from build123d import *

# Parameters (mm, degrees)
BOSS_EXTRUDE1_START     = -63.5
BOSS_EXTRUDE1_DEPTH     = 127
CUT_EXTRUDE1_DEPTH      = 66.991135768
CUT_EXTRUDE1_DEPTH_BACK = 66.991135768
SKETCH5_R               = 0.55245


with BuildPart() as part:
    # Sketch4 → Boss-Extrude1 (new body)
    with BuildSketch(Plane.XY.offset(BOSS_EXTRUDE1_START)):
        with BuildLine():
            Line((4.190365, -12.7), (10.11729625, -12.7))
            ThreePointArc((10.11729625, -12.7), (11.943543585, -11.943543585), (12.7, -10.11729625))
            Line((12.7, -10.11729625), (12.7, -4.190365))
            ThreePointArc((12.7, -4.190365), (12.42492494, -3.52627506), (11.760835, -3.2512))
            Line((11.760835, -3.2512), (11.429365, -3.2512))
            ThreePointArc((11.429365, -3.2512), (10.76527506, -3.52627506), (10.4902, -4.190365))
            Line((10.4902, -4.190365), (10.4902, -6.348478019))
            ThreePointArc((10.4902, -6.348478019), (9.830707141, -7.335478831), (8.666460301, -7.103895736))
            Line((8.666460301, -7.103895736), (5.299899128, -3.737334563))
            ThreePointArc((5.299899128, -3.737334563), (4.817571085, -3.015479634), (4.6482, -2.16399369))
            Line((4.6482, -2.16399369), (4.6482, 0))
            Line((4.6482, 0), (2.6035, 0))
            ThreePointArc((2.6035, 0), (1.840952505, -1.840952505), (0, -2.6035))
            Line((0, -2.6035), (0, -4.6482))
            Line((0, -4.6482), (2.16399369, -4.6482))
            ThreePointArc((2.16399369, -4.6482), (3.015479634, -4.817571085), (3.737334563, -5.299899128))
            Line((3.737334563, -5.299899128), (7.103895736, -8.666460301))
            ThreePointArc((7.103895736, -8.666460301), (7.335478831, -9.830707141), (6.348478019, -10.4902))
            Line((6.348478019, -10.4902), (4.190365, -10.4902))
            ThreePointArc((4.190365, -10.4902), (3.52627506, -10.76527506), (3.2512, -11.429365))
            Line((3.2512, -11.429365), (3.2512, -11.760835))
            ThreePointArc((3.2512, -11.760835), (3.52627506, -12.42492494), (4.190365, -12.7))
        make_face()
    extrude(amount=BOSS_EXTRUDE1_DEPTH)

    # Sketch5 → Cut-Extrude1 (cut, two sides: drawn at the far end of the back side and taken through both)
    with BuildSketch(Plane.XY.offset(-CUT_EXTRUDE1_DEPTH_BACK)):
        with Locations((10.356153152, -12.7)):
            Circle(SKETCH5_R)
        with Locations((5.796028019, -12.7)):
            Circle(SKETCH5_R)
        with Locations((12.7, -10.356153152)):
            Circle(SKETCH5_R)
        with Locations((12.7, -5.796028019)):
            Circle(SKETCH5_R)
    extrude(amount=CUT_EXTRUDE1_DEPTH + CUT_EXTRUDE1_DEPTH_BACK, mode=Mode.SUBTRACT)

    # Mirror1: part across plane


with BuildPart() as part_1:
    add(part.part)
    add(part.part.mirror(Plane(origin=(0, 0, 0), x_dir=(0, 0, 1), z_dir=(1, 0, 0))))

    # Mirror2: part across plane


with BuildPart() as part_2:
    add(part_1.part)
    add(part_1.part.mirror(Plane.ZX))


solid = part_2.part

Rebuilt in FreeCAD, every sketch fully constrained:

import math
import FreeCAD as App
import Part
import Sketcher
Q = App.Units.Quantity

doc = App.newDocument("Part")
params = doc.addObject("Spreadsheet::Sheet", "Params")
for row, (alias, value) in enumerate([
    ("pad1_length", "5 in"),
], start=1):
    params.set(f"A{row}", alias)
    params.set(f"B{row}", "=" + value)
    params.setAlias(f"B{row}", alias)

body = doc.addObject("PartDesign::Body", "Body")

sketch1 = body.newObject("Sketcher::SketchObject", "Sketch")
sketch1.AttachmentSupport = (doc.getObject("XY_Plane"), [""])
sketch1.MapMode = "FlatFace"
sketch1.AttachmentOffset = App.Placement(App.Vector(0, 0, -2.5 * 25.4), App.Rotation())
sketch1.addGeometry([
    Part.LineSegment(App.Vector(4.19, -12.7, 0), App.Vector(10.12, -12.7, 0)),
    Part.ArcOfCircle(Part.Circle(App.Vector(10.12, -10.12, 0), App.Vector(0, 0, 1), 2.58), math.radians(-90), math.radians(0)),
    Part.LineSegment(App.Vector(12.7, -10.12, 0), App.Vector(12.7, -4.19, 0)),
    Part.ArcOfCircle(Part.Circle(App.Vector(11.76, -4.19, 0), App.Vector(0, 0, 1), 0.94), math.radians(0), math.radians(90)),
    Part.LineSegment(App.Vector(11.76, -3.25, 0), App.Vector(11.43, -3.25, 0)),
    Part.ArcOfCircle(Part.Circle(App.Vector(11.43, -4.19, 0), App.Vector(0, 0, 1), 0.94), math.radians(90), math.radians(180)),
    Part.LineSegment(App.Vector(10.49, -4.19, 0), App.Vector(10.49, -6.35, 0)),
    Part.ArcOfCircle(Part.Circle(App.Vector(9.42, -6.35, 0), App.Vector(0, 0, 1), 1.07), math.radians(-135), math.radians(0)),
    Part.LineSegment(App.Vector(8.67, -7.1, 0), App.Vector(5.3, -3.74, 0)),
    Part.ArcOfCircle(Part.Circle(App.Vector(6.87, -2.16, 0), App.Vector(0, 0, 1), 2.23), math.radians(-180), math.radians(-135)),
    Part.LineSegment(App.Vector(4.65, -2.16, 0), App.Vector(4.65, 0, 0)),
    Part.LineSegment(App.Vector(4.65, 0, 0), App.Vector(2.6, 0, 0)),
    Part.ArcOfCircle(Part.Circle(App.Vector(0, 0, 0), App.Vector(0, 0, 1), 2.6), math.radians(-90), math.radians(0)),
    Part.LineSegment(App.Vector(0, -2.6, 0), App.Vector(0, -4.65, 0)),
    Part.LineSegment(App.Vector(0, -4.65, 0), App.Vector(2.16, -4.65, 0)),
    Part.ArcOfCircle(Part.Circle(App.Vector(2.16, -6.87, 0), App.Vector(0, 0, 1), 2.23), math.radians(45), math.radians(90)),
    Part.LineSegment(App.Vector(3.74, -5.3, 0), App.Vector(7.1, -8.67, 0)),
    Part.ArcOfCircle(Part.Circle(App.Vector(6.35, -9.42, 0), App.Vector(0, 0, 1), 1.07), math.radians(-90), math.radians(45)),
    Part.LineSegment(App.Vector(6.35, -10.49, 0), App.Vector(4.19, -10.49, 0)),
    Part.ArcOfCircle(Part.Circle(App.Vector(4.19, -11.43, 0), App.Vector(0, 0, 1), 0.94), math.radians(90), math.radians(180)),
    Part.LineSegment(App.Vector(3.25, -11.43, 0), App.Vector(3.25, -11.76, 0)),
    Part.ArcOfCircle(Part.Circle(App.Vector(4.19, -11.76, 0), App.Vector(0, 0, 1), 0.94), math.radians(-180), math.radians(-90)),
], False)
sketch1.addConstraint([
    Sketcher.Constraint("Tangent", 0, 2, 1, 1),
    Sketcher.Constraint("Tangent", 1, 2, 2, 1),
    Sketcher.Constraint("Tangent", 2, 2, 3, 1),
    Sketcher.Constraint("Tangent", 3, 2, 4, 1),
    Sketcher.Constraint("Tangent", 4, 2, 5, 1),
    Sketcher.Constraint("Tangent", 5, 2, 6, 1),
    Sketcher.Constraint("Tangent", 6, 2, 7, 2),
    Sketcher.Constraint("Tangent", 7, 1, 8, 1),
    Sketcher.Constraint("Tangent", 8, 2, 9, 2),
    Sketcher.Constraint("Tangent", 9, 1, 10, 1),
    Sketcher.Constraint("Coincident", 10, 2, 11, 1),
    Sketcher.Constraint("Coincident", 11, 2, 12, 2),
    Sketcher.Constraint("Coincident", 12, 1, 13, 1),
    Sketcher.Constraint("Coincident", 13, 2, 14, 1),
    Sketcher.Constraint("Tangent", 14, 2, 15, 2),
    Sketcher.Constraint("Tangent", 15, 1, 16, 1),
    Sketcher.Constraint("Tangent", 16, 2, 17, 2),
    Sketcher.Constraint("Tangent", 17, 1, 18, 1),
    Sketcher.Constraint("Tangent", 18, 2, 19, 1),
    Sketcher.Constraint("Tangent", 19, 2, 20, 1),
    Sketcher.Constraint("Tangent", 20, 2, 21, 1),
    Sketcher.Constraint("Tangent", 21, 2, 0, 1),
    Sketcher.Constraint("Horizontal", 0),
    Sketcher.Constraint("Vertical", 2),
    Sketcher.Constraint("Horizontal", 4),
    Sketcher.Constraint("Vertical", 6),
    Sketcher.Constraint("Vertical", 10),
    Sketcher.Constraint("Horizontal", 11),
    Sketcher.Constraint("Vertical", 13),
    Sketcher.Constraint("Horizontal", 14),
    Sketcher.Constraint("Horizontal", 18),
    Sketcher.Constraint("Vertical", 20),
    Sketcher.Constraint("Coincident", 12, 3, -1, 1),
    Sketcher.Constraint("Equal", 3, 5),
    Sketcher.Constraint("Equal", 9, 15),
    Sketcher.Constraint("Equal", 7, 17),
    Sketcher.Constraint("Equal", 5, 19),
    Sketcher.Constraint("Equal", 19, 21),
    Sketcher.Constraint("PointOnObject", 10, 2, -1),
    Sketcher.Constraint("PointOnObject", 12, 1, -2),
    Sketcher.Constraint("Parallel", 8, 16),
    Sketcher.Constraint("Equal", 0, 2),
    Sketcher.Constraint("Equal", 18, 6),
    Sketcher.Constraint("Equal", 14, 10),
    Sketcher.Constraint("Equal", 11, 13),
    Sketcher.Constraint("Equal", 4, 20),
    Sketcher.Constraint("Equal", 8, 16),
    Sketcher.Constraint("DistanceY", 0, 2, -1, 1, Q("0.5 in")),
    Sketcher.Constraint("Radius", 9, Q("0.0876 in")),
    Sketcher.Constraint("Radius", 12, Q("0.1025 in")),
    Sketcher.Constraint("DistanceX", 9, 1, 5, 2, Q("0.23 in")),
    Sketcher.Constraint("DistanceX", 11, 2, 11, 1, Q("0.0805 in")),
    Sketcher.Constraint("DistanceY", 3, 2, -1, 1, Q("0.128 in")),
    Sketcher.Constraint("Radius", 7, Q("1.068322 mm")),
    Sketcher.Constraint("DistanceX", 17, 3, 7, 3, Q("0.121 in")),
    Sketcher.Constraint("Radius", 1, Q("2.582704 mm")),
    Sketcher.Constraint("Radius", 3, Q("0.939165 mm")),
])
pad1 = body.newObject("PartDesign::Pad", "Pad")
pad1.Profile = sketch1
pad1.setExpression("Length", "Params.pad1_length")

sketch2 = body.newObject("Sketcher::SketchObject", "Sketch001")
sketch2.AttachmentSupport = (doc.getObject("XY_Plane"), [""])
sketch2.MapMode = "FlatFace"
sketch2.addGeometry([
    Part.Circle(App.Vector(10.4, -12.7, 0), App.Vector(0, 0, 1), 0.6),
    Part.Circle(App.Vector(5.8, -12.7, 0), App.Vector(0, 0, 1), 0.6),
    Part.Circle(App.Vector(12.7, -10.4, 0), App.Vector(0, 0, 1), 0.6),
    Part.Circle(App.Vector(12.7, -5.8, 0), App.Vector(0, 0, 1), 0.6),
], False)
sketch2.addConstraint([
    Sketcher.Constraint("Equal", 0, 1),
    Sketcher.Constraint("Equal", 1, 2),
    Sketcher.Constraint("Equal", 2, 3),
    Sketcher.Constraint("Horizontal", 0, 3, 1, 3),
    Sketcher.Constraint("Vertical", 2, 3, 3, 3),
    Sketcher.Constraint("Diameter", 0, Q("0.0435 in")),
    Sketcher.Constraint("DistanceY", 0, 3, -1, 1, Q("0.5 in")),
    Sketcher.Constraint("DistanceX", -1, 1, 2, 3, Q("0.5 in")),
    Sketcher.Constraint("DistanceX", -1, 1, 1, 3, Q("5.796028 mm")),
    Sketcher.Constraint("DistanceY", 3, 3, -1, 1, Q("5.796028 mm")),
    Sketcher.Constraint("DistanceX", -1, 1, 0, 3, Q("10.356153 mm")),
    Sketcher.Constraint("DistanceY", 2, 3, -1, 1, Q("10.356153 mm")),
])
pocket1 = body.newObject("PartDesign::Pocket", "Pocket")
pocket1.Profile = sketch2
pocket1.Type = "ThroughAll"
pocket1.Midplane = True
body2 = doc.addObject("PartDesign::Body", "Body001")
doc.recompute()

body2.BaseFeature = body
doc.recompute()

mirroring = doc.addObject("Part::Mirroring", "Mirroring")
mirroring.Source = body
mirroring.Base = App.Vector(0, 0, 0)
mirroring.Normal = App.Vector(1, 0, 0)
body3 = doc.addObject("PartDesign::Body", "Body002")
body3.BaseFeature = mirroring
boolean = body2.newObject("PartDesign::Boolean", "Boolean")
boolean.Type = "Fuse"
boolean.addObjects([body3])
doc.recompute()
body4 = doc.addObject("PartDesign::Body", "Body003")
doc.recompute()

body4.BaseFeature = body2
doc.recompute()

mirroring2 = doc.addObject("Part::Mirroring", "Mirroring001")
mirroring2.Source = body2
mirroring2.Base = App.Vector(0, 0, 0)
mirroring2.Normal = App.Vector(0, 1, 0)
body5 = doc.addObject("PartDesign::Body", "Body004")
body5.BaseFeature = mirroring2
boolean2 = body4.newObject("PartDesign::Boolean", "Boolean001")
boolean2.Type = "Fuse"
boolean2.addObjects([body5])
doc.recompute()
mirroring.Visibility = False
mirroring2.Visibility = False

doc.recompute()
